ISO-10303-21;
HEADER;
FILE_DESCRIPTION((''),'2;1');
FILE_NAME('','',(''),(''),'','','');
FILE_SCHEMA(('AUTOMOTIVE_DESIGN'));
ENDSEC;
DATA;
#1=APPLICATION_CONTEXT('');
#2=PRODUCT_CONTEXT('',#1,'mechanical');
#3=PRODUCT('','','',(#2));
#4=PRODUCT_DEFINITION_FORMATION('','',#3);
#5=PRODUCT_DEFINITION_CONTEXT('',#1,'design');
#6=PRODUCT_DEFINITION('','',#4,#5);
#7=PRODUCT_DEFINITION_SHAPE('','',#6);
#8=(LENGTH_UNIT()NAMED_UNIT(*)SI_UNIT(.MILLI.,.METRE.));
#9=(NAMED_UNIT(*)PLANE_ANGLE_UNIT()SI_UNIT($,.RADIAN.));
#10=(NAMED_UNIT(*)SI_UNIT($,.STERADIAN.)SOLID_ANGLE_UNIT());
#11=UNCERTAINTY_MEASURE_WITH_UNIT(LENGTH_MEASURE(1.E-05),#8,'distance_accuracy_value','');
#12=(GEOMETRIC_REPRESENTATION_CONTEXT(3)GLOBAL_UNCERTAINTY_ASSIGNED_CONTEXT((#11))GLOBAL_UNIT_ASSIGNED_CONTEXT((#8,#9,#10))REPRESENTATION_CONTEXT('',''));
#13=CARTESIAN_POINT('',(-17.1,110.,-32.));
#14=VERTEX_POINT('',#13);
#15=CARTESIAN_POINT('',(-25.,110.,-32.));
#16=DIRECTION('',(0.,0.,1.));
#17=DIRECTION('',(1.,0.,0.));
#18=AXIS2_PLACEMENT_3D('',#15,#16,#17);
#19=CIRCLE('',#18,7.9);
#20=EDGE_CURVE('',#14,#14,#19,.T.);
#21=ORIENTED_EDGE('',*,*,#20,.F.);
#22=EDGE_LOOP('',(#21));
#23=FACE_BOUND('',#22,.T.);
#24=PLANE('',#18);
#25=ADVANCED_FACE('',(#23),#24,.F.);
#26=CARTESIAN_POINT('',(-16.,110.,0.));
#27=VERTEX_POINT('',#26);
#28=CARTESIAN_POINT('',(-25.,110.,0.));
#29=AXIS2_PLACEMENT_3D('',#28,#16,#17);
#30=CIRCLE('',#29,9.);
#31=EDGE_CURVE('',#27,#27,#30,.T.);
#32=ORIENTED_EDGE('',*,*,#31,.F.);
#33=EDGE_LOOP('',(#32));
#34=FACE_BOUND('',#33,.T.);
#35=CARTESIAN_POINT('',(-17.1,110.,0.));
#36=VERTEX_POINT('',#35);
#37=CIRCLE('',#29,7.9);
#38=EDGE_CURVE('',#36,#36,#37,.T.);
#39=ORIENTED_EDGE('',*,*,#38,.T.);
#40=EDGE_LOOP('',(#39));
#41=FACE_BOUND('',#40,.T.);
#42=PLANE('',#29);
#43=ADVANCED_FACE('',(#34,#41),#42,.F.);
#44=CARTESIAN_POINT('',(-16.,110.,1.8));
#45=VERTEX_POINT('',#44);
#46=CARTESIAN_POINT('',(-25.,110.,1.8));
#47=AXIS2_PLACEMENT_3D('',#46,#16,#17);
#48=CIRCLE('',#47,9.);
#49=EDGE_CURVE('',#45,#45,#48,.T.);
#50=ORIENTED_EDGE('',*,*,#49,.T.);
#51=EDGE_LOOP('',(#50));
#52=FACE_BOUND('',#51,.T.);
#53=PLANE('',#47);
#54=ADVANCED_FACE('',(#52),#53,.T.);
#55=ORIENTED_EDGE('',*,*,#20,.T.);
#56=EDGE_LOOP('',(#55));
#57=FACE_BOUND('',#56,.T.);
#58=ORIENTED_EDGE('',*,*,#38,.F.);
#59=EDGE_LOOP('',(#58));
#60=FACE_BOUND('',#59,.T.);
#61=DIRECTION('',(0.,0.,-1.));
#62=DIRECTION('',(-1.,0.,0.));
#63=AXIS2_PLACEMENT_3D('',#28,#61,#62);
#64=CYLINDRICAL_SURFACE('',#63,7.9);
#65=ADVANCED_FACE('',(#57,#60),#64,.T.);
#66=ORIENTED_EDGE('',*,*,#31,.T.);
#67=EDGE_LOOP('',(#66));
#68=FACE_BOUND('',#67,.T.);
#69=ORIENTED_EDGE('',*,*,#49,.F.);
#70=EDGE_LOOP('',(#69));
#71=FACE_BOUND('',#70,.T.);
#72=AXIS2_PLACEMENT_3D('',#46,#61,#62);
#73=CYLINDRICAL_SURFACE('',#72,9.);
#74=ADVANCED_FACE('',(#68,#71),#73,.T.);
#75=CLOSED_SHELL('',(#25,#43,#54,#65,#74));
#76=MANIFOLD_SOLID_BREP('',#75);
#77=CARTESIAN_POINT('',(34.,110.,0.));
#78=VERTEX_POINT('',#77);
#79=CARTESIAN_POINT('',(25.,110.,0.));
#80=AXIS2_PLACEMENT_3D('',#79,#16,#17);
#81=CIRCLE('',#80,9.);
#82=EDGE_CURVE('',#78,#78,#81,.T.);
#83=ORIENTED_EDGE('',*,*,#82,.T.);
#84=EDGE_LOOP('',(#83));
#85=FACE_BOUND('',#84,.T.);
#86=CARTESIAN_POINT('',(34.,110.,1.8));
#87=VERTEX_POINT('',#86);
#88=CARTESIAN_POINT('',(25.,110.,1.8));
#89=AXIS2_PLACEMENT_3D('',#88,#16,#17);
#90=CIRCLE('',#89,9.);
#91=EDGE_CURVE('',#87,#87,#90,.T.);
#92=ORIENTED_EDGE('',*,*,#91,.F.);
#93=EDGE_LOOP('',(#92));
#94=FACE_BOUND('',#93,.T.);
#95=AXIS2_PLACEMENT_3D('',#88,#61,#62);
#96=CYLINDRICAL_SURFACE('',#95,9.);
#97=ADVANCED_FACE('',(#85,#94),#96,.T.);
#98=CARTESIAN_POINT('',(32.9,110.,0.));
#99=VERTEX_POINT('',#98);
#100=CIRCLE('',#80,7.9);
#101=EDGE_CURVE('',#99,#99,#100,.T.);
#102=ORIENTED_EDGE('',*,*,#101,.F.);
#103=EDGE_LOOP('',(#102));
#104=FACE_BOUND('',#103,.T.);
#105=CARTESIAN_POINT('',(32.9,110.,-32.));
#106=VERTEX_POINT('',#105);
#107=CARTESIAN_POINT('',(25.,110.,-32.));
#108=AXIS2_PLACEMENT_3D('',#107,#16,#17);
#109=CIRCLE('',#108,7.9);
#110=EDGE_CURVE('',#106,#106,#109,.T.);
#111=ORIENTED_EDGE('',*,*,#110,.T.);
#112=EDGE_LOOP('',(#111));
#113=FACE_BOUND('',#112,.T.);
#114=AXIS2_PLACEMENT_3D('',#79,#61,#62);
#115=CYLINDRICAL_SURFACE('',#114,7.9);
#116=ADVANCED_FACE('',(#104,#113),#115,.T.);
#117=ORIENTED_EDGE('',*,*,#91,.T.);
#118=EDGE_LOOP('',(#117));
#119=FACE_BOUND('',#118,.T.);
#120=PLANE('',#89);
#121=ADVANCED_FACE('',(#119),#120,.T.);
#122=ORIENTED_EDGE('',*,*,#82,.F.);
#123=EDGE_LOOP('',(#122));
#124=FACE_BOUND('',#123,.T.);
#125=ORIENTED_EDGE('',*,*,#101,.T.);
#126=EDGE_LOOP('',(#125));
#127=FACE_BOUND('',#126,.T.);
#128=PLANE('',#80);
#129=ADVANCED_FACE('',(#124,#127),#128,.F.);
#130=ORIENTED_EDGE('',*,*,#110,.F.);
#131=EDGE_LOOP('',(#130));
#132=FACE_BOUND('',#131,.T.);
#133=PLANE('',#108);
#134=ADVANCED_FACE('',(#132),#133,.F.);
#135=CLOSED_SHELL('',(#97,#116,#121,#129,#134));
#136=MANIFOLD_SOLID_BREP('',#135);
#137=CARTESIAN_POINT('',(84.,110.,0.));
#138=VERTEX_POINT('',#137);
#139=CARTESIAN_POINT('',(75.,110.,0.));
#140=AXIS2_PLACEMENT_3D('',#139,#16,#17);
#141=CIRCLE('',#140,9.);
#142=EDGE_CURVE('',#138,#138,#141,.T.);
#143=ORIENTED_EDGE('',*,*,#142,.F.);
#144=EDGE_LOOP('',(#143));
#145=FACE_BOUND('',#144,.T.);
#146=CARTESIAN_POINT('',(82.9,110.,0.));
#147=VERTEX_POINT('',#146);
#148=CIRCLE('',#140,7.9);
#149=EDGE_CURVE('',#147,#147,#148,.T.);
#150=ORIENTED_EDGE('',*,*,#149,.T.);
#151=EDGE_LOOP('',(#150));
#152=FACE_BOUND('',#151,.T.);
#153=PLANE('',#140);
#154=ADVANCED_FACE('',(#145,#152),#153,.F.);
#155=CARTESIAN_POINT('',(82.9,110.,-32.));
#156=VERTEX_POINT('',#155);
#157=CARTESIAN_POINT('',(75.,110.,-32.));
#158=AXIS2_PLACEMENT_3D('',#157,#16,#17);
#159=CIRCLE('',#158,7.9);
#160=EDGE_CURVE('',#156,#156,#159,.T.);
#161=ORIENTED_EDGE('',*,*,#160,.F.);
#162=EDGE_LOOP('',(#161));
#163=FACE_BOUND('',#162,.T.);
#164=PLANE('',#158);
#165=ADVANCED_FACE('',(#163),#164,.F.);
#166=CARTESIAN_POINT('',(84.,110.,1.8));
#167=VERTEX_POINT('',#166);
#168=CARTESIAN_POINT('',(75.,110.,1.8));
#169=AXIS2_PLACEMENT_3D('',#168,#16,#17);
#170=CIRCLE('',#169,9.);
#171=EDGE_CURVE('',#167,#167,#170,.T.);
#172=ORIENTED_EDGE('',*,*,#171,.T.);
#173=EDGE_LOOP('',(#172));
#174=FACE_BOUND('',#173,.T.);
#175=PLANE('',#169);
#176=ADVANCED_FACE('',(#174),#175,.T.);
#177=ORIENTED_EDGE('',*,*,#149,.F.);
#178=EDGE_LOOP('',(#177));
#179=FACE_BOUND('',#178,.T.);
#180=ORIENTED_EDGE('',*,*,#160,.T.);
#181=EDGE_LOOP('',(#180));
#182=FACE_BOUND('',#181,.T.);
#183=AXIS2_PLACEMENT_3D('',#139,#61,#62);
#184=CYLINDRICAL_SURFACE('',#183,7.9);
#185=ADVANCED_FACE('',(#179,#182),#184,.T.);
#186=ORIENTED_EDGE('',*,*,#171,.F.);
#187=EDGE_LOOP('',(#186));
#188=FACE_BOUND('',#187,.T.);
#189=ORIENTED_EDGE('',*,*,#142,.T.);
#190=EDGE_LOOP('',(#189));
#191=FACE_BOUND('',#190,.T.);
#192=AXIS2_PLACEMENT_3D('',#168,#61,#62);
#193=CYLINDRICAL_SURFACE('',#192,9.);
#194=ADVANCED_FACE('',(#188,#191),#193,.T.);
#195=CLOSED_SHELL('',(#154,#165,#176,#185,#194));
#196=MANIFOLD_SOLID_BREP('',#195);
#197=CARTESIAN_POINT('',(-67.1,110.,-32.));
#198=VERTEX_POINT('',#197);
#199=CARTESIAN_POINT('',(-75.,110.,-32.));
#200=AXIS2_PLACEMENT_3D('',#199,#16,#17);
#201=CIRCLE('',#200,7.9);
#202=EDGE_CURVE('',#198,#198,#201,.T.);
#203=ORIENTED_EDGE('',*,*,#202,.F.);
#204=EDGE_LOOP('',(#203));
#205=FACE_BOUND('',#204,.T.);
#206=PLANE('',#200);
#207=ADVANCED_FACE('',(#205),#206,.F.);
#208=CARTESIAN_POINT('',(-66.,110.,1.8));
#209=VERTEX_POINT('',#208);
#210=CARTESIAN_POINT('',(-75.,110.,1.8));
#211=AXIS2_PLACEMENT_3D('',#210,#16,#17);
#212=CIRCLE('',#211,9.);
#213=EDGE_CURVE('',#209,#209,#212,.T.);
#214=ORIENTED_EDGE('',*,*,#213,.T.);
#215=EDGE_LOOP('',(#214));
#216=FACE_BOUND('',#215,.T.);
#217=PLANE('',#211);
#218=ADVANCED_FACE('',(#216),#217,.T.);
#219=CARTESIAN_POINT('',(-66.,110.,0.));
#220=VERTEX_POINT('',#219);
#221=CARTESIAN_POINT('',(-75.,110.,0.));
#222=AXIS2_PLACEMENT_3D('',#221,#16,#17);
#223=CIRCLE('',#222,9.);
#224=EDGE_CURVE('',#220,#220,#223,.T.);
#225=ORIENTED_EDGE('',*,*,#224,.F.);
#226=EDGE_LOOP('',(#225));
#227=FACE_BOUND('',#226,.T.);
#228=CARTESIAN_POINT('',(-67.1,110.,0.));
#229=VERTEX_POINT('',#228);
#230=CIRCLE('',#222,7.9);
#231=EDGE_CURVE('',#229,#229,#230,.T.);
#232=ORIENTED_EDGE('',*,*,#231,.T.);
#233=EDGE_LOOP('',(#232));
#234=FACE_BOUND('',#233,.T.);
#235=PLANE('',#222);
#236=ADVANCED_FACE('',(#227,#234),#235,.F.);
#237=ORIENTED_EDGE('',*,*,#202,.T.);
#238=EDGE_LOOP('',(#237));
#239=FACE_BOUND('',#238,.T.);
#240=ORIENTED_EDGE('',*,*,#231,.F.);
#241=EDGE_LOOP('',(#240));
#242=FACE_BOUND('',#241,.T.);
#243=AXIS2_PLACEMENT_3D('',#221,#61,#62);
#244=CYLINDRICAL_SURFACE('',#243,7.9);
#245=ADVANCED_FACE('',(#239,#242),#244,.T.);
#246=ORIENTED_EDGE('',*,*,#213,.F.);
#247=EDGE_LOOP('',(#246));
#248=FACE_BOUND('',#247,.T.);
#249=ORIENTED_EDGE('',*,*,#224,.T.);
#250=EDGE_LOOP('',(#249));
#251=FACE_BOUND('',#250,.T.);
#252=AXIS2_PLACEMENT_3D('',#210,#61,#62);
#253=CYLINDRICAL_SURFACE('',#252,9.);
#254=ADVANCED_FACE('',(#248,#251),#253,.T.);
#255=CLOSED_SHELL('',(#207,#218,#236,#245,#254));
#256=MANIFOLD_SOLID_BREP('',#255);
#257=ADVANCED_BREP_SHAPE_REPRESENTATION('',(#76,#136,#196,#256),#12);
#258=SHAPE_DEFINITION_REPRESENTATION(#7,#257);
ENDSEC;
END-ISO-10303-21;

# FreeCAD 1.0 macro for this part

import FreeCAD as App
import Part
import Sketcher
Q = App.Units.Quantity

doc = App.newDocument("Part")
body = doc.addObject("PartDesign::Body", "Body")

# Sketch on XY plane
sketch1 = body.newObject("Sketcher::SketchObject", "Sketch")
sketch1.AttachmentSupport = (doc.getObject("XY_Plane"), [""])
sketch1.MapMode = "FlatFace"
sketch1.AttachmentOffset = App.Placement(App.Vector(0, 0, -32), App.Rotation())
sketch1.addGeometry(Part.Circle(App.Vector(-75, 110, 0), App.Vector(0, 0, 1), 8), False)
sketch1.addConstraint(Sketcher.Constraint("Diameter", 0, Q("15.8 mm")))
sketch1.addConstraint(Sketcher.Constraint("DistanceX", 0, 3, -1, 1, Q("75 mm")))
sketch1.addConstraint(Sketcher.Constraint("DistanceY", -1, 1, 0, 3, Q("110 mm")))
pad1 = body.newObject("PartDesign::Pad", "Pad")
pad1.Profile = sketch1
pad1.Length = 32
body2 = doc.addObject("PartDesign::Body", "Body001")

# Sketch on XY plane
sketch2 = body2.newObject("Sketcher::SketchObject", "Sketch001")
sketch2.AttachmentSupport = (doc.getObject("XY_Plane001"), [""])
sketch2.MapMode = "FlatFace"
sketch2.AttachmentOffset = App.Placement(App.Vector(0, 0, -32), App.Rotation())
sketch2.addGeometry(Part.Circle(App.Vector(-25, 110, 0), App.Vector(0, 0, 1), 8), False)
sketch2.addConstraint(Sketcher.Constraint("Diameter", 0, Q("15.8 mm")))
sketch2.addConstraint(Sketcher.Constraint("DistanceX", 0, 3, -1, 1, Q("25 mm")))
sketch2.addConstraint(Sketcher.Constraint("DistanceY", -1, 1, 0, 3, Q("110 mm")))
pad2 = body2.newObject("PartDesign::Pad", "Pad001")
pad2.Profile = sketch2
pad2.Length = 32
body3 = doc.addObject("PartDesign::Body", "Body002")

# Sketch on XY plane
sketch3 = body3.newObject("Sketcher::SketchObject", "Sketch002")
sketch3.AttachmentSupport = (doc.getObject("XY_Plane002"), [""])
sketch3.MapMode = "FlatFace"
sketch3.AttachmentOffset = App.Placement(App.Vector(0, 0, -32), App.Rotation())
sketch3.addGeometry(Part.Circle(App.Vector(25, 110, 0), App.Vector(0, 0, 1), 8), False)
sketch3.addConstraint(Sketcher.Constraint("Diameter", 0, Q("15.8 mm")))
sketch3.addConstraint(Sketcher.Constraint("DistanceX", -1, 1, 0, 3, Q("25 mm")))
sketch3.addConstraint(Sketcher.Constraint("DistanceY", -1, 1, 0, 3, Q("110 mm")))
pad3 = body3.newObject("PartDesign::Pad", "Pad002")
pad3.Profile = sketch3
pad3.Length = 32
body4 = doc.addObject("PartDesign::Body", "Body003")

# Sketch on XY plane
sketch4 = body4.newObject("Sketcher::SketchObject", "Sketch003")
sketch4.AttachmentSupport = (doc.getObject("XY_Plane003"), [""])
sketch4.MapMode = "FlatFace"
sketch4.AttachmentOffset = App.Placement(App.Vector(0, 0, -32), App.Rotation())
sketch4.addGeometry(Part.Circle(App.Vector(75, 110, 0), App.Vector(0, 0, 1), 8), False)
sketch4.addConstraint(Sketcher.Constraint("Diameter", 0, Q("15.8 mm")))
sketch4.addConstraint(Sketcher.Constraint("DistanceX", -1, 1, 0, 3, Q("75 mm")))
sketch4.addConstraint(Sketcher.Constraint("DistanceY", -1, 1, 0, 3, Q("110 mm")))
pad4 = body4.newObject("PartDesign::Pad", "Pad003")
pad4.Profile = sketch4
pad4.Length = 32
body.AllowCompound = True
doc.recompute()

boolean = body.newObject("PartDesign::Boolean", "Boolean")
boolean.Type = "Fuse"
boolean.addObjects([body2])
doc.recompute()

boolean2 = body.newObject("PartDesign::Boolean", "Boolean001")
boolean2.Type = "Fuse"
boolean2.addObjects([body3])
doc.recompute()

boolean3 = body.newObject("PartDesign::Boolean", "Boolean002")
boolean3.Type = "Fuse"
boolean3.addObjects([body4])

# Sketch on XY plane
sketch5 = body.newObject("Sketcher::SketchObject", "Sketch004")
sketch5.AttachmentSupport = (doc.getObject("XY_Plane"), [""])
sketch5.MapMode = "FlatFace"
sketch5.addGeometry(Part.Circle(App.Vector(-75, 110, 0), App.Vector(0, 0, 1), 9), False)
sketch5.addGeometry(Part.Circle(App.Vector(-25, 110, 0), App.Vector(0, 0, 1), 9), False)
sketch5.addGeometry(Part.Circle(App.Vector(25, 110, 0), App.Vector(0, 0, 1), 9), False)
sketch5.addGeometry(Part.Circle(App.Vector(75, 110, 0), App.Vector(0, 0, 1), 9), False)
sketch5.addConstraint(Sketcher.Constraint("Equal", 0, 1))
sketch5.addConstraint(Sketcher.Constraint("Equal", 1, 2))
sketch5.addConstraint(Sketcher.Constraint("Equal", 2, 3))
sketch5.addConstraint(Sketcher.Constraint("Symmetric", 1, 3, 2, 3, -2))
sketch5.addConstraint(Sketcher.Constraint("Symmetric", 0, 3, 3, 3, -2))
sketch5.addConstraint(Sketcher.Constraint("Horizontal", 0, 3, 1, 3))
sketch5.addConstraint(Sketcher.Constraint("Diameter", 0, Q("18 mm")))
sketch5.addConstraint(Sketcher.Constraint("DistanceX", 0, 3, -1, 1, Q("75 mm")))
sketch5.addConstraint(Sketcher.Constraint("DistanceY", -1, 1, 0, 3, Q("110 mm")))
sketch5.addConstraint(Sketcher.Constraint("DistanceX", 1, 3, -1, 1, Q("25 mm")))
pad5 = body.newObject("PartDesign::Pad", "Pad004")
pad5.Profile = sketch5
pad5.Length = 1.8

doc.recompute()
